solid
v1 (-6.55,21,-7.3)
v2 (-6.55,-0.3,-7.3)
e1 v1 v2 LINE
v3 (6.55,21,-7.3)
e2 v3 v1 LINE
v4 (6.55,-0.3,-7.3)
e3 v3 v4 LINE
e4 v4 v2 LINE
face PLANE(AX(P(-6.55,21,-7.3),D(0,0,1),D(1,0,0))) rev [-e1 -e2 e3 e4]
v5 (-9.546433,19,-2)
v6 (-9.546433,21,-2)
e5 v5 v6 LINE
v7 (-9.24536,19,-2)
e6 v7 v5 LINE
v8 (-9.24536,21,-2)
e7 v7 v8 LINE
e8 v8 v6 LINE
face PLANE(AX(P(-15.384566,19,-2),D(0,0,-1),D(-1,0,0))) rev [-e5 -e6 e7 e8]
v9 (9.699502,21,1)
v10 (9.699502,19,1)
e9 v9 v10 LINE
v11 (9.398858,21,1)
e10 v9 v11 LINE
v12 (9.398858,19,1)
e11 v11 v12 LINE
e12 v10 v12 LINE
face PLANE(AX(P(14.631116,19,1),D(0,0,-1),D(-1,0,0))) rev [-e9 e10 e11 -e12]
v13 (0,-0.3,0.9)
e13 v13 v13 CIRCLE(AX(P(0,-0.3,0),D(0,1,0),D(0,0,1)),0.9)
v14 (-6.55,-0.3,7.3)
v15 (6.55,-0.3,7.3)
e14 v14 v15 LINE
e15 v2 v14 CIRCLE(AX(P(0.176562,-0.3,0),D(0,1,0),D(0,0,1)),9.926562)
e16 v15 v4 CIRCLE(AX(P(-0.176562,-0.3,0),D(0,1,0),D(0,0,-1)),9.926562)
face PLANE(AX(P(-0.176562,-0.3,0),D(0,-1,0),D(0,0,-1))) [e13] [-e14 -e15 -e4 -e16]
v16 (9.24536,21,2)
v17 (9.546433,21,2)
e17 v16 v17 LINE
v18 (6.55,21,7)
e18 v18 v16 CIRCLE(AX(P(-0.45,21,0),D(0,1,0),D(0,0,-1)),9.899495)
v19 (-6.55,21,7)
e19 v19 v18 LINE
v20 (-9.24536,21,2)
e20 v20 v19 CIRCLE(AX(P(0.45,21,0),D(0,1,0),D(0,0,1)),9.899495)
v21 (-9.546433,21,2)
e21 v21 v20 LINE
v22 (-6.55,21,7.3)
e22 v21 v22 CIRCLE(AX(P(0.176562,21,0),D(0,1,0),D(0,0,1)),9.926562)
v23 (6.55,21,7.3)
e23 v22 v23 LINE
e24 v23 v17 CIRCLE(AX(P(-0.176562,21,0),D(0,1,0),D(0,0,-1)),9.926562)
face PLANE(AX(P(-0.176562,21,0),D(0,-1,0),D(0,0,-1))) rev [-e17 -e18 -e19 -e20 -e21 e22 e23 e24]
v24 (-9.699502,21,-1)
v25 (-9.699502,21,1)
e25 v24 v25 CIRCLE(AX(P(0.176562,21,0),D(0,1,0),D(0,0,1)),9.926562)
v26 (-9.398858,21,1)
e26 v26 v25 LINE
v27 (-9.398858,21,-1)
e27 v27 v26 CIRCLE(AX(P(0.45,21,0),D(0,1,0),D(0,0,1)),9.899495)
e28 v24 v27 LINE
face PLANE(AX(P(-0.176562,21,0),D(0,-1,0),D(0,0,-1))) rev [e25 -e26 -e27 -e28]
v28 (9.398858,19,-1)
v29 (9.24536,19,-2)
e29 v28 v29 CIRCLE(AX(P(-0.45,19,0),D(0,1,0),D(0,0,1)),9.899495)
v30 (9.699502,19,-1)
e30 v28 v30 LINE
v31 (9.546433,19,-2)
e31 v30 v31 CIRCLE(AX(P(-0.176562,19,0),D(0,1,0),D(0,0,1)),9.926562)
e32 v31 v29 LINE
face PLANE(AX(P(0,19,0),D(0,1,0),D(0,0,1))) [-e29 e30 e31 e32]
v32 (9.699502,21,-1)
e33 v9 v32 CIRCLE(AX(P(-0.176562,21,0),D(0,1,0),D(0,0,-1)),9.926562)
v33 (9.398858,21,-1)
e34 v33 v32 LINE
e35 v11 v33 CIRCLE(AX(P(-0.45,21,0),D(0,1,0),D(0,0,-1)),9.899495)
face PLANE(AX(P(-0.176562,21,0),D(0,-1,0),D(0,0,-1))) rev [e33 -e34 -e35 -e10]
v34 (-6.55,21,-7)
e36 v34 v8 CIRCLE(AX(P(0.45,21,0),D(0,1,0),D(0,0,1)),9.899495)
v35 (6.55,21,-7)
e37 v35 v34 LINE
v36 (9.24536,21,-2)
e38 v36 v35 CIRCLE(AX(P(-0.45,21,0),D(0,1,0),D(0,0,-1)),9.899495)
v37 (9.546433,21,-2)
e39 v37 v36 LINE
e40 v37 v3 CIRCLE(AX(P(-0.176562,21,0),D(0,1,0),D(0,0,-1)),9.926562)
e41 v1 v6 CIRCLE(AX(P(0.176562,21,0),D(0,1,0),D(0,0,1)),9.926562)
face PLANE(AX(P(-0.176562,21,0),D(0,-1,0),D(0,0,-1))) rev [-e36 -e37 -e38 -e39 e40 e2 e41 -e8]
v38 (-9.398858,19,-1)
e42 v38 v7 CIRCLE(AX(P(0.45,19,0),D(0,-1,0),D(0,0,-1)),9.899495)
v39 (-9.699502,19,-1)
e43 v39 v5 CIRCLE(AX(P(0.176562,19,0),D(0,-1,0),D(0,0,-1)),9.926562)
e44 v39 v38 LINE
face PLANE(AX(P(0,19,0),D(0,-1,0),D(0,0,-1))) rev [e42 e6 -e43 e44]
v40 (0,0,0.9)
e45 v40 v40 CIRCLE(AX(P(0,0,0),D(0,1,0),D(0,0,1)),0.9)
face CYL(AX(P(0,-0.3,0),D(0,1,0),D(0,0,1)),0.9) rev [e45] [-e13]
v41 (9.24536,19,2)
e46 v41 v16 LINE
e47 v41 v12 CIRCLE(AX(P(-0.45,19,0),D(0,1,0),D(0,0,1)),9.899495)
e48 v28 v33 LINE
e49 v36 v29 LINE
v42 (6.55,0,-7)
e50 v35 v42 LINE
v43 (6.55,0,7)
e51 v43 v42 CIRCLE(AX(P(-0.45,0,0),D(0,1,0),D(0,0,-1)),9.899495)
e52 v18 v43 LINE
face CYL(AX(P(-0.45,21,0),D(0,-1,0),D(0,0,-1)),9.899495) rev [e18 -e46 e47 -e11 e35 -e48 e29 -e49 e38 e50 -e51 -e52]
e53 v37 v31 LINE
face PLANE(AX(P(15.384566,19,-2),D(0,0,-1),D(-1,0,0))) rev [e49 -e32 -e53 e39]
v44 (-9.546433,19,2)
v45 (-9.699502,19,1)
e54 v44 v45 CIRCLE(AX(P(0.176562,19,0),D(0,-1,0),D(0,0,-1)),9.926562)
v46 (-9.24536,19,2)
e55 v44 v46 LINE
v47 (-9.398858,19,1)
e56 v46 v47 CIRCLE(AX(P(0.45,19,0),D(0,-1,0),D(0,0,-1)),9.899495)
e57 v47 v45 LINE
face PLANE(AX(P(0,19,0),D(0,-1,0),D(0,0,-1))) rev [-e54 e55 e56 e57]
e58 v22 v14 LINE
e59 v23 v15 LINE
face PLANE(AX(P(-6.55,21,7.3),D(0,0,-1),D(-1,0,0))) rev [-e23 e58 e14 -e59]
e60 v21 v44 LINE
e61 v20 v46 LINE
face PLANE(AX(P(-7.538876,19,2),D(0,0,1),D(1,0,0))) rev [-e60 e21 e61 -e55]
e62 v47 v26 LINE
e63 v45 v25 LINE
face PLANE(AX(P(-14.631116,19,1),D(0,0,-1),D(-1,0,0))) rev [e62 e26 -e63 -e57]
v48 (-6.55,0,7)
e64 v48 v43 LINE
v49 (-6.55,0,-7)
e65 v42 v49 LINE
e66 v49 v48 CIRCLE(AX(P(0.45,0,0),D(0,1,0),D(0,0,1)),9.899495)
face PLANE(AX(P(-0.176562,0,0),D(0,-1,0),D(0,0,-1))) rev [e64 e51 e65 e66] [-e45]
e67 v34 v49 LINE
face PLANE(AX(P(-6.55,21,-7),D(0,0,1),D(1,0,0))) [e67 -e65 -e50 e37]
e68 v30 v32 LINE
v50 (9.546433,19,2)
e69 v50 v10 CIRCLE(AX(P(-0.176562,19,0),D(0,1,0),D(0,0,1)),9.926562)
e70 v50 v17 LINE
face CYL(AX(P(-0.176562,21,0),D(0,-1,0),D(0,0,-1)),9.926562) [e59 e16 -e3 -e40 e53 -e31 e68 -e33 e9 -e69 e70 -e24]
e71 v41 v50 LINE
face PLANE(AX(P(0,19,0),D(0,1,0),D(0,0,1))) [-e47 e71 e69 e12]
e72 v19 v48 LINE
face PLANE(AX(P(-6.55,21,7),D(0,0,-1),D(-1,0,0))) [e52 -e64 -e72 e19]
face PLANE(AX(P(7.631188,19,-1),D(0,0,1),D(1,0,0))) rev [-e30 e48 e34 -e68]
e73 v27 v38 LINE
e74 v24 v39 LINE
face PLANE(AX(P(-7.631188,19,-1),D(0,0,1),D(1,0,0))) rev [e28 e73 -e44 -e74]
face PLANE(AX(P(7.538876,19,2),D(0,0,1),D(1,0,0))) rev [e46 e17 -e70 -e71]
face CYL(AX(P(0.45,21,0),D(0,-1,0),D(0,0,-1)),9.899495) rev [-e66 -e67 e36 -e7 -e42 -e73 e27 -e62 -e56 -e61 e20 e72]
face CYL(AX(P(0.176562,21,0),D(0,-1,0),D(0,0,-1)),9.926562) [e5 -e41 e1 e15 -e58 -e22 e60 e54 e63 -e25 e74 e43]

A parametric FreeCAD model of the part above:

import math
import FreeCAD as App
import Part
import Sketcher
Q = App.Units.Quantity

doc = App.newDocument("Part")
body = doc.addObject("PartDesign::Body", "Body")

sketch1 = body.newObject("Sketcher::SketchObject", "Sketch")
sketch1.AttachmentSupport = (doc.getObject("XZ_Plane"), [""])
sketch1.MapMode = "FlatFace"
sketch1.addGeometry([
    Part.LineSegment(App.Vector(6.55, -7.3, 0), App.Vector(-6.55, -7.3, 0)),
    Part.ArcOfCircle(Part.Circle(App.Vector(0.176563, 0, 0), App.Vector(0, 0, 1), 9.926562), math.radians(132.658923), math.radians(227.341077)),
    Part.LineSegment(App.Vector(-6.55, 7.3, 0), App.Vector(6.55, 7.3, 0)),
    Part.ArcOfCircle(Part.Circle(App.Vector(-0.176563, 0, 0), App.Vector(0, 0, 1), 9.926562), math.radians(-47.341077), math.radians(47.341077)),
    Part.LineSegment(App.Vector(-6.55, -7, 0), App.Vector(6.55, -7, 0)),
    Part.ArcOfCircle(Part.Circle(App.Vector(-0.45, 0, 0), App.Vector(0, 0, 1), 9.899495), math.radians(-45), math.radians(45)),
    Part.LineSegment(App.Vector(6.55, 7, 0), App.Vector(-6.55, 7, 0)),
    Part.ArcOfCircle(Part.Circle(App.Vector(0.45, 0, 0), App.Vector(0, 0, 1), 9.899495), math.radians(135), math.radians(225)),
], False)
sketch1.addConstraint([
    Sketcher.Constraint("Coincident", 0, 2, 1, 2),
    Sketcher.Constraint("Coincident", 1, 1, 2, 1),
    Sketcher.Constraint("Coincident", 2, 2, 3, 2),
    Sketcher.Constraint("Coincident", 3, 1, 0, 1),
    Sketcher.Constraint("Coincident", 4, 2, 5, 1),
    Sketcher.Constraint("Coincident", 5, 2, 6, 1),
    Sketcher.Constraint("Coincident", 6, 2, 7, 1),
    Sketcher.Constraint("Coincident", 7, 2, 4, 1),
    Sketcher.Constraint("Horizontal", 0),
    Sketcher.Constraint("Horizontal", 2),
    Sketcher.Constraint("Horizontal", 4),
    Sketcher.Constraint("Horizontal", 6),
    Sketcher.Constraint("Equal", 1, 3),
    Sketcher.Constraint("Equal", 5, 7),
    Sketcher.Constraint("Symmetric", 1, 3, 3, 3, -1, 1),
    Sketcher.Constraint("Symmetric", 5, 3, 7, 3, -1, 1),
    Sketcher.Constraint("Symmetric", 0, 2, 1, 1, -1),
    Sketcher.Constraint("Symmetric", 4, 2, 5, 2, -1),
    Sketcher.Constraint("Vertical", 3, 1, 4, 2),
    Sketcher.Constraint("DistanceX", 0, 2, 0, 1, Q("13.1 mm")),
    Sketcher.Constraint("DistanceY", 4, 2, -1, 1, Q("7 mm")),
    Sketcher.Constraint("DistanceX", 0, 2, 7, 3, Q("7 mm")),
    Sketcher.Constraint("DistanceY", 0, 2, -1, 1, Q("7.3 mm")),
    Sketcher.Constraint("Radius", 1, Q("9.926562 mm")),
])
pad1 = body.newObject("PartDesign::Pad", "Pad")
pad1.Profile = sketch1
pad1.Length = 21
pad1.Reversed = True

sketch2 = body.newObject("Sketcher::SketchObject", "Sketch001")
sketch2.AttachmentSupport = (doc.getObject("XZ_Plane"), [""])
sketch2.MapMode = "FlatFace"
sketch2.AttachmentOffset = App.Placement(App.Vector(0, 0, 0.3), App.Rotation())
sketch2.addGeometry([
    Part.LineSegment(App.Vector(6.5, -7.3, 0), App.Vector(-6.5, -7.3, 0)),
    Part.ArcOfCircle(Part.Circle(App.Vector(0.2, 0, 0), App.Vector(0, 0, 1), 9.9), math.radians(133), math.radians(227)),
    Part.LineSegment(App.Vector(-6.5, 7.3, 0), App.Vector(6.5, 7.3, 0)),
    Part.ArcOfCircle(Part.Circle(App.Vector(-0.2, 0, 0), App.Vector(0, 0, 1), 9.9), math.radians(-47), math.radians(47)),
    Part.Circle(App.Vector(0, 0, 0), App.Vector(0, 0, 1), 0.9),
], False)
sketch2.addConstraint([
    Sketcher.Constraint("Coincident", 0, 2, 1, 2),
    Sketcher.Constraint("Coincident", 1, 1, 2, 1),
    Sketcher.Constraint("Coincident", 2, 2, 3, 2),
    Sketcher.Constraint("Coincident", 3, 1, 0, 1),
    Sketcher.Constraint("Horizontal", 0),
    Sketcher.Constraint("Horizontal", 2),
    Sketcher.Constraint("Coincident", 4, 3, -1, 1),
    Sketcher.Constraint("Equal", 1, 3),
    Sketcher.Constraint("Symmetric", 1, 3, 3, 3, -1, 1),
    Sketcher.Constraint("Symmetric", 0, 2, 1, 1, -1),
    Sketcher.Constraint("Diameter", 4, Q("1.8 mm")),
    Sketcher.Constraint("DistanceX", 0, 2, 0, 1, Q("13.1 mm")),
    Sketcher.Constraint("DistanceY", 0, 2, -1, 1, Q("7.3 mm")),
    Sketcher.Constraint("Radius", 1, Q("9.926562 mm")),
])
pad2 = body.newObject("PartDesign::Pad", "Pad001")
pad2.Profile = sketch2
pad2.Length = 0.3
pad2.Reversed = True

sketch3 = body.newObject("Sketcher::SketchObject", "Sketch002")
sketch3.AttachmentSupport = (doc.getObject("XZ_Plane"), [""])
sketch3.MapMode = "FlatFace"
sketch3.AttachmentOffset = App.Placement(App.Vector(0, 0, -21), App.Rotation())
sketch3.addGeometry([
    Part.LineSegment(App.Vector(-14.6, -1, 0), App.Vector(-7.6, -1, 0)),
    Part.LineSegment(App.Vector(-7.6, -1, 0), App.Vector(-7.6, -2, 0)),
    Part.LineSegment(App.Vector(-7.6, -2, 0), App.Vector(-15.4, -2, 0)),
    Part.LineSegment(App.Vector(-15.4, -2, 0), App.Vector(-15.4, 2, 0)),
    Part.LineSegment(App.Vector(-15.4, 2, 0), App.Vector(-7.5, 2, 0)),
    Part.LineSegment(App.Vector(-7.5, 2, 0), App.Vector(-7.5, 1, 0)),
    Part.LineSegment(App.Vector(-7.5, 1, 0), App.Vector(-14.6, 1, 0)),
    Part.LineSegment(App.Vector(-14.6, 1, 0), App.Vector(-14.6, -1, 0)),
    Part.LineSegment(App.Vector(7.6, -2, 0), App.Vector(7.6, -1, 0)),
    Part.LineSegment(App.Vector(7.6, -1, 0), App.Vector(14.6, -1, 0)),
    Part.LineSegment(App.Vector(14.6, -1, 0), App.Vector(14.6, 1, 0)),
    Part.LineSegment(App.Vector(14.6, 1, 0), App.Vector(7.5, 1, 0)),
    Part.LineSegment(App.Vector(7.5, 1, 0), App.Vector(7.5, 2, 0)),
    Part.LineSegment(App.Vector(7.5, 2, 0), App.Vector(15.4, 2, 0)),
    Part.LineSegment(App.Vector(15.4, 2, 0), App.Vector(15.4, -2, 0)),
    Part.LineSegment(App.Vector(15.4, -2, 0), App.Vector(7.6, -2, 0)),
], False)
sketch3.addConstraint([
    Sketcher.Constraint("Coincident", 0, 2, 1, 1),
    Sketcher.Constraint("Coincident", 1, 2, 2, 1),
    Sketcher.Constraint("Coincident", 2, 2, 3, 1),
    Sketcher.Constraint("Coincident", 3, 2, 4, 1),
    Sketcher.Constraint("Coincident", 4, 2, 5, 1),
    Sketcher.Constraint("Coincident", 5, 2, 6, 1),
    Sketcher.Constraint("Coincident", 6, 2, 7, 1),
    Sketcher.Constraint("Coincident", 7, 2, 0, 1),
    Sketcher.Constraint("Coincident", 8, 2, 9, 1),
    Sketcher.Constraint("Coincident", 9, 2, 10, 1),
    Sketcher.Constraint("Coincident", 10, 2, 11, 1),
    Sketcher.Constraint("Coincident", 11, 2, 12, 1),
    Sketcher.Constraint("Coincident", 12, 2, 13, 1),
    Sketcher.Constraint("Coincident", 13, 2, 14, 1),
    Sketcher.Constraint("Coincident", 14, 2, 15, 1),
    Sketcher.Constraint("Coincident", 15, 2, 8, 1),
    Sketcher.Constraint("Horizontal", 0),
    Sketcher.Constraint("Vertical", 1),
    Sketcher.Constraint("Horizontal", 2),
    Sketcher.Constraint("Vertical", 3),
    Sketcher.Constraint("Horizontal", 4),
    Sketcher.Constraint("Vertical", 5),
    Sketcher.Constraint("Horizontal", 6),
    Sketcher.Constraint("Vertical", 7),
    Sketcher.Constraint("Vertical", 8),
    Sketcher.Constraint("Horizontal", 9),
    Sketcher.Constraint("Vertical", 10),
    Sketcher.Constraint("Horizontal", 11),
    Sketcher.Constraint("Vertical", 12),
    Sketcher.Constraint("Horizontal", 13),
    Sketcher.Constraint("Vertical", 14),
    Sketcher.Constraint("Horizontal", 15),
    Sketcher.Constraint("Symmetric", 6, 2, 9, 2, -1, 1),
    Sketcher.Constraint("Symmetric", 2, 2, 13, 2, -1, 1),
    Sketcher.Constraint("Symmetric", 0, 2, 8, 2, -2),
    Sketcher.Constraint("Symmetric", 5, 2, 11, 2, -2),
    Sketcher.Constraint("Horizontal", 4, 2, 12, 2),
    Sketcher.Constraint("Horizontal", 2, 2, 14, 2),
    Sketcher.Constraint("DistanceY", 1, 2, 1, 1, Q("1 mm")),
    Sketcher.Constraint("DistanceY", 3, 1, 3, 2, Q("4 mm")),
    Sketcher.Constraint("DistanceX", 4, 1, 4, 2, Q("7.84569 mm")),
    Sketcher.Constraint("DistanceX", 6, 2, 6, 1, Q("7.09224 mm")),
    Sketcher.Constraint("DistanceX", 0, 1, 0, 2, Q("6.999927 mm")),
    Sketcher.Constraint("DistanceX", 0, 2, -1, 1, Q("7.631188 mm")),
])
pocket1 = body.newObject("PartDesign::Pocket", "Pocket")
pocket1.Profile = sketch3
pocket1.Length = 2
pocket1.Reversed = True

doc.recompute()
